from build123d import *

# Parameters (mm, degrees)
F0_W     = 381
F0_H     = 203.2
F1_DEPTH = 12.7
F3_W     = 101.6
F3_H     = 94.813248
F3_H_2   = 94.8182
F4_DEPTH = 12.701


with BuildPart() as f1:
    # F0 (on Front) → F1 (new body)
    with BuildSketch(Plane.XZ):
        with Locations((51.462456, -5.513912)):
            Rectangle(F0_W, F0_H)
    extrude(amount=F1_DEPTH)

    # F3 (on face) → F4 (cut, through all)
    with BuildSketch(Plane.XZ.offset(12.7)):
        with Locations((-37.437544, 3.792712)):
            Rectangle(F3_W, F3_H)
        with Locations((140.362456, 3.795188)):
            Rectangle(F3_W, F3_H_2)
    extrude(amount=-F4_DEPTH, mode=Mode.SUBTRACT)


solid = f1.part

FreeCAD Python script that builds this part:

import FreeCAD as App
import Part
import Sketcher
from FreeCAD import Vector
Q = App.Units.Quantity

doc = App.newDocument("Part")
body = doc.addObject("PartDesign::Body", "Body")

sketch1 = doc.addObject("Sketcher::SketchObject", "Sketch")
body.addObject(sketch1)
sketch1.AttachmentSupport = (doc.XZ_Plane, [""])
sketch1.MapMode = "FlatFace"
sketch1.addGeometry(Part.LineSegment(Vector(-139, 96, 0), Vector(-139, -107, 0)), False)
sketch1.addGeometry(Part.LineSegment(Vector(-139, -107, 0), Vector(242, -107, 0)), False)
sketch1.addGeometry(Part.LineSegment(Vector(242, -107, 0), Vector(242, 96, 0)), False)
sketch1.addGeometry(Part.LineSegment(Vector(242, 96, 0), Vector(-139, 96, 0)), False)
sketch1.addConstraint(Sketcher.Constraint("Coincident", 0, 2, 1, 1))
sketch1.addConstraint(Sketcher.Constraint("Coincident", 1, 2, 2, 1))
sketch1.addConstraint(Sketcher.Constraint("Coincident", 2, 2, 3, 1))
sketch1.addConstraint(Sketcher.Constraint("Coincident", 3, 2, 0, 1))
sketch1.addConstraint(Sketcher.Constraint("Vertical", 0))
sketch1.addConstraint(Sketcher.Constraint("Horizontal", 1))
sketch1.addConstraint(Sketcher.Constraint("Vertical", 2))
sketch1.addConstraint(Sketcher.Constraint("Horizontal", 3))
sketch1.addConstraint(Sketcher.Constraint("DistanceX", 1, 1, 1, 2, Q("15 in")))
sketch1.addConstraint(Sketcher.Constraint("DistanceY", 0, 2, 0, 1, Q("8 in")))
sketch1.addConstraint(Sketcher.Constraint("DistanceY", 0, 2, -1, 1, Q("107.113912 mm")))
sketch1.addConstraint(Sketcher.Constraint("DistanceX", 0, 2, -1, 1, Q("139.037544 mm")))
pad1 = doc.addObject("PartDesign::Pad", "Pad")
body.addObject(pad1)
pad1.Profile = sketch1
pad1.Length = Q("0.5 in")

sketch2 = doc.addObject("Sketcher::SketchObject", "Sketch001")
body.addObject(sketch2)
sketch2.AttachmentSupport = (doc.XZ_Plane, [""])
sketch2.MapMode = "FlatFace"
sketch2.AttachmentOffset = App.Placement(Vector(0, 0, 0.5 * 25.4), App.Rotation())
sketch2.addGeometry(Part.LineSegment(Vector(-88, 51, 0), Vector(-88, -44, 0)), False)
sketch2.addGeometry(Part.LineSegment(Vector(-88, -44, 0), Vector(13, -44, 0)), False)
sketch2.addGeometry(Part.LineSegment(Vector(13, -44, 0), Vector(13, 51, 0)), False)
sketch2.addGeometry(Part.LineSegment(Vector(13, 51, 0), Vector(-88, 51, 0)), False)
sketch2.addGeometry(Part.LineSegment(Vector(90, 51, 0), Vector(90, -44, 0)), False)
sketch2.addGeometry(Part.LineSegment(Vector(90, -44, 0), Vector(191, -44, 0)), False)
sketch2.addGeometry(Part.LineSegment(Vector(191, -44, 0), Vector(191, 51, 0)), False)
sketch2.addGeometry(Part.LineSegment(Vector(191, 51, 0), Vector(90, 51, 0)), False)
sketch2.addConstraint(Sketcher.Constraint("Coincident", 0, 2, 1, 1))
sketch2.addConstraint(Sketcher.Constraint("Coincident", 1, 2, 2, 1))
sketch2.addConstraint(Sketcher.Constraint("Coincident", 2, 2, 3, 1))
sketch2.addConstraint(Sketcher.Constraint("Coincident", 3, 2, 0, 1))
sketch2.addConstraint(Sketcher.Constraint("Coincident", 4, 2, 5, 1))
sketch2.addConstraint(Sketcher.Constraint("Coincident", 5, 2, 6, 1))
sketch2.addConstraint(Sketcher.Constraint("Coincident", 6, 2, 7, 1))
sketch2.addConstraint(Sketcher.Constraint("Coincident", 7, 2, 4, 1))
sketch2.addConstraint(Sketcher.Constraint("Vertical", 0))
sketch2.addConstraint(Sketcher.Constraint("Horizontal", 1))
sketch2.addConstraint(Sketcher.Constraint("Vertical", 2))
sketch2.addConstraint(Sketcher.Constraint("Horizontal", 3))
sketch2.addConstraint(Sketcher.Constraint("Vertical", 4))
sketch2.addConstraint(Sketcher.Constraint("Horizontal", 5))
sketch2.addConstraint(Sketcher.Constraint("Vertical", 6))
sketch2.addConstraint(Sketcher.Constraint("Horizontal", 7))
sketch2.addConstraint(Sketcher.Constraint("Horizontal", 1, 2, 4, 2))
sketch2.addConstraint(Sketcher.Constraint("Equal", 3, 5))
sketch2.addConstraint(Sketcher.Constraint("DistanceX", 1, 1, 1, 2, Q("4 in")))
sketch2.addConstraint(Sketcher.Constraint("DistanceX", 1, 2, 4, 2, Q("3 in")))
sketch2.addConstraint(Sketcher.Constraint("DistanceY", 4, 2, 4, 1, Q("3.733 in")))
sketch2.addConstraint(Sketcher.Constraint("DistanceY", 0, 2, 0, 1, Q("94.813248 mm")))
sketch2.addConstraint(Sketcher.Constraint("DistanceX", 0, 2, -1, 1, Q("88.237544 mm")))
sketch2.addConstraint(Sketcher.Constraint("DistanceY", 0, 2, -1, 1, Q("43.613912 mm")))
pocket1 = doc.addObject("PartDesign::Pocket", "Pocket")
body.addObject(pocket1)
pocket1.Profile = sketch2
pocket1.Type = "ThroughAll"

doc.recompute()
